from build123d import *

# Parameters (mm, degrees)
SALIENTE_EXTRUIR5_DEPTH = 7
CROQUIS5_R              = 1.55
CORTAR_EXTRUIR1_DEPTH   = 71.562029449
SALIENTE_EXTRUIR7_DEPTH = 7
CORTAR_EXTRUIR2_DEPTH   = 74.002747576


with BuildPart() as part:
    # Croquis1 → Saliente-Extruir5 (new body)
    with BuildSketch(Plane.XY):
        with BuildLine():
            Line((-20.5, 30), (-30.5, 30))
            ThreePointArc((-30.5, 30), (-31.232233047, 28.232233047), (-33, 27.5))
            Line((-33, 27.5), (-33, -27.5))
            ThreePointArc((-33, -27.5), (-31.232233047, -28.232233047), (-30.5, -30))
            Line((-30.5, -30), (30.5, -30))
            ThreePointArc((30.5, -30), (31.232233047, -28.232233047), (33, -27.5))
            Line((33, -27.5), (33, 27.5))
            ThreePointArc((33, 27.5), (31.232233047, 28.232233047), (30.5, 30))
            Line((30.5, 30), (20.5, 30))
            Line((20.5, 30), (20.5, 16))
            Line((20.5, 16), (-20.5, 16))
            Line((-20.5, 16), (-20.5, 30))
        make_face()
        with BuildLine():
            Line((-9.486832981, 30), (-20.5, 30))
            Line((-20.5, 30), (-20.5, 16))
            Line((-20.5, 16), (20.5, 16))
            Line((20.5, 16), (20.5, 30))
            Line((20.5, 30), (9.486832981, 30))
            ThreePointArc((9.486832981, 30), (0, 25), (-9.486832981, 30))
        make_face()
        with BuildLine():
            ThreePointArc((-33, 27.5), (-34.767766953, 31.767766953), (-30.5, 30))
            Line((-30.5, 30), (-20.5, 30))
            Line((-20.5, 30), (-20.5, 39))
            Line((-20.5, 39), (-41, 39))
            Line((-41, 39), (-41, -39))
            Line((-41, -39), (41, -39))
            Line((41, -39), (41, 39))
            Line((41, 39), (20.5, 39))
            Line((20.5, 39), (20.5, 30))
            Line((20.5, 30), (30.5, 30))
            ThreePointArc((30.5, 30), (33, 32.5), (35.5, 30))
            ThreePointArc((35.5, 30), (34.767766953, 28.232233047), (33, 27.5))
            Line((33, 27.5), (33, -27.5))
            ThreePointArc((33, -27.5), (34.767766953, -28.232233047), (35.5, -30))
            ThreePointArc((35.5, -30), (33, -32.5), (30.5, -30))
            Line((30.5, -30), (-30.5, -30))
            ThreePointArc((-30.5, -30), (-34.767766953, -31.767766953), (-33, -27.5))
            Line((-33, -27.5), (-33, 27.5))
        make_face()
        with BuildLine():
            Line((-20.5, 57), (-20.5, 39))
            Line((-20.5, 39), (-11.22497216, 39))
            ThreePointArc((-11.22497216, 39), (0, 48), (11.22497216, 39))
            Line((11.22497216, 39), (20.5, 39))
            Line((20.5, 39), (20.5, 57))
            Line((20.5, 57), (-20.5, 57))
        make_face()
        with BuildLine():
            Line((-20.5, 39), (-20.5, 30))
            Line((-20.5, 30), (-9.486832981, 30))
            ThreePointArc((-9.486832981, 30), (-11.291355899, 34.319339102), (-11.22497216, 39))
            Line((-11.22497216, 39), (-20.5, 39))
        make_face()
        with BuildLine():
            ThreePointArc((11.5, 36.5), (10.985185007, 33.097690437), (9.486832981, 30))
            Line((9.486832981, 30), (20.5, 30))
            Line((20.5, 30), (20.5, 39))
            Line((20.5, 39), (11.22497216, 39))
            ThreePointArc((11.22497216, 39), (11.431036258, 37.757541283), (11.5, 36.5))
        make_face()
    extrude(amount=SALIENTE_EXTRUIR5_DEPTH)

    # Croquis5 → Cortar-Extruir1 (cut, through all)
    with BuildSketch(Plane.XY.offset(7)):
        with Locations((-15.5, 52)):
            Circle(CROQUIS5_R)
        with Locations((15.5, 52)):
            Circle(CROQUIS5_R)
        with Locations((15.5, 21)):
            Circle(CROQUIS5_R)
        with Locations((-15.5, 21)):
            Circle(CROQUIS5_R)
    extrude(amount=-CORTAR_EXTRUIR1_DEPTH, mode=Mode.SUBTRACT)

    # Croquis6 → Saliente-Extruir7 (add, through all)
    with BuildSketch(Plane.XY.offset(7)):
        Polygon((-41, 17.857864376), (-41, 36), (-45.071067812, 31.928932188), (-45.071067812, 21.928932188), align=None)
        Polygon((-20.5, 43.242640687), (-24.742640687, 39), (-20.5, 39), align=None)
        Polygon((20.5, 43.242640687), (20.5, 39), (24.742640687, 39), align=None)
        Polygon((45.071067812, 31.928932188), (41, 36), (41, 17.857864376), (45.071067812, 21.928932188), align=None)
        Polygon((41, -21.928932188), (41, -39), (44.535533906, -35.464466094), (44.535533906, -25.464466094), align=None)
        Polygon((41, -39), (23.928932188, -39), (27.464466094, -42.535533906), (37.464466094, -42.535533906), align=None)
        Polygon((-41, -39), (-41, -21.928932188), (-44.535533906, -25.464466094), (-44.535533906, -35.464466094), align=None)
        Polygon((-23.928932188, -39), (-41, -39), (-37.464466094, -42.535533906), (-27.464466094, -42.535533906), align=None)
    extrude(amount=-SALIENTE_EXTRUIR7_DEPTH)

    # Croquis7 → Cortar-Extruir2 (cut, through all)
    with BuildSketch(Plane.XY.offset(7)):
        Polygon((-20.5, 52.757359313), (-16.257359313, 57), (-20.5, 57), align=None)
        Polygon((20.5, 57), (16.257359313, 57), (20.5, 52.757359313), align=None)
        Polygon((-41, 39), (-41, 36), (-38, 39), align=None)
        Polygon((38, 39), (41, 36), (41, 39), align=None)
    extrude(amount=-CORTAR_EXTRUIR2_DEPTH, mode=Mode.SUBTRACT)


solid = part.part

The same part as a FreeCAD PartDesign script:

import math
import FreeCAD as App
import Part
import Sketcher
from FreeCAD import Vector
Q = App.Units.Quantity


def add_polygon(sketch, points):
    """Adds a closed chain of lines whose ends are joined by coincident constraints."""
    first, n = sketch.GeometryCount, len(points)
    for a, b in zip(points, points[1:] + points[:1]):
        sketch.addGeometry(Part.LineSegment(App.Vector(*a, 0), App.Vector(*b, 0)), False)
    for i in range(n):
        sketch.addConstraint(Sketcher.Constraint("Coincident", first + i, 2, first + (i + 1) % n, 1))

doc = App.newDocument("Part")
params = doc.addObject("Spreadsheet::Sheet", "Params")
for row, (alias, value) in enumerate([
    ("sketch1_radius", "2.5 mm"),
    ("sketch1_radius2", "11.5 mm"),
    ("sketch1_width", "41 mm"),
    ("sketch1_width2", "82 mm"),
    ("sketch1_height", "18 mm"),
    ("pad1_length", "7 mm"),
    ("sketch2_diameter", "3.1 mm"),
    ("sketch3_width", "10 mm"),
    ("sketch3_length", "6 mm"),
    ("sketch3_length2", "5 mm"),
    ("sketch4_width", "3 mm"),
    ("sketch4_length", "6 mm"),
], start=1):
    params.set(f"A{row}", alias)
    params.set(f"B{row}", "=" + value)
    params.setAlias(f"B{row}", alias)

body = doc.addObject("PartDesign::Body", "Body")

# Sketch on XY plane
sketch1 = body.newObject("Sketcher::SketchObject", "Sketch")
sketch1.AttachmentSupport = (doc.getObject("XY_Plane"), [""])
sketch1.MapMode = "FlatFace"
add_polygon(sketch1, [(41, 39), (20.5, 39), (20.5, 57), (-20.5, 57), (-20.5, 39), (-41, 39), (-41, -39), (41, -39)])  # lines 0-7
sketch1.addGeometry(Part.ArcOfCircle(Part.Circle(Vector(-33, -30, 0), Vector(0, 0, 1), 2.5), math.radians(0), math.radians(90)), False)  # 8
sketch1.addGeometry(Part.ArcOfCircle(Part.Circle(Vector(-33, -30, 0), Vector(0, 0, 1), 2.5), math.radians(90), math.radians(360)), False)  # 9
sketch1.addGeometry(Part.ArcOfCircle(Part.Circle(Vector(33, -30, 0), Vector(0, 0, 1), 2.5), math.radians(90), math.radians(180)), False)  # 10
sketch1.addGeometry(Part.ArcOfCircle(Part.Circle(Vector(33, -30, 0), Vector(0, 0, 1), 2.5), math.radians(0), math.radians(90)), False)  # 11
sketch1.addGeometry(Part.ArcOfCircle(Part.Circle(Vector(33, -30, 0), Vector(0, 0, 1), 2.5), math.radians(180), math.radians(360)), False)  # 12
sketch1.addGeometry(Part.ArcOfCircle(Part.Circle(Vector(-33, 30, 0), Vector(0, 0, 1), 2.5), math.radians(-90), math.radians(0)), False)  # 13
sketch1.addGeometry(Part.ArcOfCircle(Part.Circle(Vector(-33, 30, 0), Vector(0, 0, 1), 2.5), math.radians(0), math.radians(270)), False)  # 14
sketch1.addGeometry(Part.ArcOfCircle(Part.Circle(Vector(0, 36.5, 0), Vector(0, 0, 1), 11.5), math.radians(13), math.radians(167)), False)  # 15
sketch1.addGeometry(Part.ArcOfCircle(Part.Circle(Vector(0, 36.5, 0), Vector(0, 0, 1), 11.5), math.radians(0), math.radians(12.56)), False)  # 16
sketch1.addGeometry(Part.ArcOfCircle(Part.Circle(Vector(0, 36.5, 0), Vector(0, 0, 1), 11.5), math.radians(-34), math.radians(0)), False)  # 17
sketch1.addGeometry(Part.ArcOfCircle(Part.Circle(Vector(0, 36.5, 0), Vector(0, 0, 1), 11.5), math.radians(-146), math.radians(-34)), False)  # 18
sketch1.addGeometry(Part.ArcOfCircle(Part.Circle(Vector(0, 36.5, 0), Vector(0, 0, 1), 11.5), math.radians(167), math.radians(214)), False)  # 19
sketch1.addGeometry(Part.ArcOfCircle(Part.Circle(Vector(33, 30, 0), Vector(0, 0, 1), 2.5), math.radians(180), math.radians(270)), False)  # 20
sketch1.addGeometry(Part.ArcOfCircle(Part.Circle(Vector(33, 30, 0), Vector(0, 0, 1), 2.5), math.radians(0), math.radians(180)), False)  # 21
sketch1.addGeometry(Part.ArcOfCircle(Part.Circle(Vector(33, 30, 0), Vector(0, 0, 1), 2.5), math.radians(-90), math.radians(0)), False)  # 22
sketch1.addConstraint([
    Sketcher.Constraint("Tangent", 8, 1, 9, 2),
    Sketcher.Constraint("Coincident", 9, 1, 8, 2),
    Sketcher.Constraint("Tangent", 10, 1, 11, 2),
    Sketcher.Constraint("Tangent", 11, 1, 12, 2),
    Sketcher.Constraint("Tangent", 12, 1, 10, 2),
    Sketcher.Constraint("Tangent", 13, 1, 14, 2),
    Sketcher.Constraint("Coincident", 14, 1, 13, 2),
    Sketcher.Constraint("Tangent", 15, 1, 16, 2),
    Sketcher.Constraint("Tangent", 16, 1, 17, 2),
    Sketcher.Constraint("Tangent", 17, 1, 18, 2),
    Sketcher.Constraint("Tangent", 18, 1, 19, 2),
    Sketcher.Constraint("Tangent", 19, 1, 15, 2),
    Sketcher.Constraint("Tangent", 20, 1, 21, 2),
    Sketcher.Constraint("Tangent", 21, 1, 22, 2),
    Sketcher.Constraint("Tangent", 22, 1, 20, 2),
    Sketcher.Constraint("Horizontal", 0),
    Sketcher.Constraint("Vertical", 1),
    Sketcher.Constraint("Horizontal", 2),
    Sketcher.Constraint("Vertical", 3),
    Sketcher.Constraint("Horizontal", 4),
    Sketcher.Constraint("Vertical", 5),
    Sketcher.Constraint("Horizontal", 6),
    Sketcher.Constraint("Vertical", 7),
    Sketcher.Constraint("Coincident", 17, 3, 15, 3),
    Sketcher.Constraint("Equal", 9, 10),
    Sketcher.Constraint("Equal", 12, 13),
    Sketcher.Constraint("Equal", 14, 20),
    Sketcher.Constraint("Symmetric", 10, 3, 13, 3, -1, 1),
    Sketcher.Constraint("Symmetric", 8, 3, 20, 3, -1, 1),
    Sketcher.Constraint("Symmetric", 4, 2, 6, 2, -1, 1),
    Sketcher.Constraint("Symmetric", 8, 3, 10, 3, -2),
    Sketcher.Constraint("Symmetric", 0, 2, 3, 2, -2),
    Sketcher.Constraint("Symmetric", 17, 1, 18, 1, -2),
    Sketcher.Constraint("Horizontal", 12, 3, 8, 1),
    Sketcher.Constraint("Horizontal", 8, 1, 11, 1),
    Sketcher.Constraint("Horizontal", 11, 1, 12, 1),
    Sketcher.Constraint("Horizontal", 22, 3, 14, 1),
    Sketcher.Constraint("Horizontal", 7, 2, 15, 1),
    Sketcher.Constraint("Horizontal", 19, 3, 16, 1),
    Sketcher.Constraint("Horizontal", 14, 1, 17, 1),
    Sketcher.Constraint("Horizontal", 15, 1, 19, 1),
    Sketcher.Constraint("Horizontal", 18, 1, 20, 1),
    Sketcher.Constraint("Horizontal", 20, 1, 21, 1),
    Sketcher.Constraint("Vertical", 14, 3, 9, 1),
    Sketcher.Constraint("Vertical", 22, 3, 10, 1),
    Sketcher.Constraint("Vertical", 9, 1, 13, 1),
    Sketcher.Constraint("Vertical", 10, 1, 22, 1),
    Sketcher.Constraint("Radius", 8, Q("2.5 mm")),
    Sketcher.Constraint("Radius", 15, Q("11.5 mm")),
    Sketcher.Constraint("DistanceX", 2, 2, 2, 1, Q("41 mm")),
    Sketcher.Constraint("DistanceX", 6, 1, 6, 2, Q("82 mm")),
    Sketcher.Constraint("DistanceY", 1, 1, 1, 2, Q("18 mm")),
    Sketcher.Constraint("DistanceY", 5, 2, 5, 1, Q("78 mm")),
    Sketcher.Constraint("DistanceX", 8, 3, -1, 1, Q("33 mm")),
    Sketcher.Constraint("DistanceY", 8, 3, -1, 1, Q("30 mm")),
    Sketcher.Constraint("DistanceY", -1, 1, 15, 3, Q("36.5 mm")),
])
sketch1.setExpression("Constraints[55]", "Params.sketch1_radius")
sketch1.setExpression("Constraints[56]", "Params.sketch1_radius2")
sketch1.setExpression("Constraints[57]", "Params.sketch1_width")
sketch1.setExpression("Constraints[58]", "Params.sketch1_width2")
sketch1.setExpression("Constraints[59]", "Params.sketch1_height")
pad1 = body.newObject("PartDesign::Pad", "Pad")
pad1.Profile = sketch1
pad1.setExpression("Length", "Params.pad1_length")

# Sketch on XY plane
sketch2 = body.newObject("Sketcher::SketchObject", "Sketch001")
sketch2.AttachmentSupport = (doc.getObject("XY_Plane"), [""])
sketch2.MapMode = "FlatFace"
sketch2.AttachmentOffset = App.Placement(Vector(0, 0, 7), App.Rotation())
sketch2.addGeometry([
    Part.Circle(Vector(-15.5, 52, 0), Vector(0, 0, 1), 1.6),
    Part.Circle(Vector(15.5, 52, 0), Vector(0, 0, 1), 1.6),
    Part.Circle(Vector(15.5, 21, 0), Vector(0, 0, 1), 1.6),
    Part.Circle(Vector(-15.5, 21, 0), Vector(0, 0, 1), 1.6),
], False)
sketch2.addConstraint([
    Sketcher.Constraint("Equal", 0, 1),
    Sketcher.Constraint("Equal", 1, 2),
    Sketcher.Constraint("Equal", 2, 3),
    Sketcher.Constraint("Symmetric", 0, 3, 1, 3, -2),
    Sketcher.Constraint("Symmetric", 2, 3, 3, 3, -2),
    Sketcher.Constraint("Vertical", 1, 3, 2, 3),
    Sketcher.Constraint("Diameter", 0, Q("3.1 mm")),
    Sketcher.Constraint("DistanceY", -1, 1, 0, 3, Q("52 mm")),
    Sketcher.Constraint("DistanceY", -1, 1, 2, 3, Q("21 mm")),
    Sketcher.Constraint("DistanceX", 0, 3, 1, 3, Q("31 mm")),
])
sketch2.setExpression("Constraints[6]", "Params.sketch2_diameter")
pocket1 = body.newObject("PartDesign::Pocket", "Pocket")
pocket1.Profile = sketch2
pocket1.Type = "ThroughAll"

# Sketch on XY plane
sketch3 = body.newObject("Sketcher::SketchObject", "Sketch002")
sketch3.AttachmentSupport = (doc.getObject("XY_Plane"), [""])
sketch3.MapMode = "FlatFace"
sketch3.AttachmentOffset = App.Placement(Vector(0, 0, 7), App.Rotation())
add_polygon(sketch3, [(-41, 17.9), (-41, 36), (-45.1, 31.9), (-45.1, 21.9)])  # lines 0-3
add_polygon(sketch3, [(-20.5, 43.2), (-24.7, 39), (-20.5, 39)])  # lines 4-6
add_polygon(sketch3, [(20.5, 43.2), (20.5, 39), (24.7, 39)])  # lines 7-9
add_polygon(sketch3, [(45.1, 31.9), (41, 36), (41, 17.9), (45.1, 21.9)])  # lines 10-13
add_polygon(sketch3, [(41, -21.9), (41, -39), (44.5, -35.5), (44.5, -25.5)])  # lines 14-17
add_polygon(sketch3, [(41, -39), (23.9, -39), (27.5, -42.5), (37.5, -42.5)])  # lines 18-21
add_polygon(sketch3, [(-41, -39), (-41, -21.9), (-44.5, -25.5), (-44.5, -35.5)])  # lines 22-25
add_polygon(sketch3, [(-23.9, -39), (-41, -39), (-37.5, -42.5), (-27.5, -42.5)])  # lines 26-29
sketch3.addConstraint([
    Sketcher.Constraint("Vertical", 0),
    Sketcher.Constraint("Vertical", 2),
    Sketcher.Constraint("Horizontal", 5),
    Sketcher.Constraint("Vertical", 6),
    Sketcher.Constraint("Vertical", 7),
    Sketcher.Constraint("Horizontal", 8),
    Sketcher.Constraint("Vertical", 11),
    Sketcher.Constraint("Vertical", 13),
    Sketcher.Constraint("Vertical", 14),
    Sketcher.Constraint("Vertical", 16),
    Sketcher.Constraint("Horizontal", 18),
    Sketcher.Constraint("Horizontal", 20),
    Sketcher.Constraint("Vertical", 22),
    Sketcher.Constraint("Vertical", 24),
    Sketcher.Constraint("Horizontal", 26),
    Sketcher.Constraint("Horizontal", 28),
    Sketcher.Constraint("Coincident", 21, 2, 14, 2),
    Sketcher.Constraint("Coincident", 26, 2, 25, 2),
    Sketcher.Constraint("Symmetric", 5, 2, 7, 2, -2),
    Sketcher.Constraint("Symmetric", 0, 2, 10, 2, -2),
    Sketcher.Constraint("Symmetric", 2, 2, 12, 2, -2),
    Sketcher.Constraint("Symmetric", 17, 2, 22, 2, -2),
    Sketcher.Constraint("Symmetric", 16, 2, 23, 2, -2),
    Sketcher.Constraint("Symmetric", 20, 2, 27, 2, -2),
    Sketcher.Constraint("Symmetric", 18, 2, 29, 2, -2),
    Sketcher.Constraint("Perpendicular", 1, 3),
    Sketcher.Constraint("Perpendicular", 3, 4),
    Sketcher.Constraint("Perpendicular", 4, 9),
    Sketcher.Constraint("Parallel", 9, 10),
    Sketcher.Constraint("Perpendicular", 10, 12),
    Sketcher.Constraint("Parallel", 12, 15),
    Sketcher.Constraint("Perpendicular", 15, 17),
    Sketcher.Constraint("Parallel", 17, 19),
    Sketcher.Constraint("Perpendicular", 19, 21),
    Sketcher.Constraint("Parallel", 21, 23),
    Sketcher.Constraint("Perpendicular", 23, 25),
    Sketcher.Constraint("Perpendicular", 27, 29),
    Sketcher.Constraint("Horizontal", 6, 2, 9, 2),
    Sketcher.Constraint("Vertical", 11, 2, 14, 2),
    Sketcher.Constraint("Equal", 28, 2),
    Sketcher.Constraint("Equal", 26, 14),
    Sketcher.Constraint("Equal", 13, 16),
    Sketcher.Constraint("DistanceX", 20, 1, 20, 2, Q("10 mm")),
    Sketcher.Constraint("Distance", 4, Q("6 mm")),
    Sketcher.Constraint("Distance", 15, Q("5 mm")),
    Sketcher.Constraint("DistanceX", 0, 2, -1, 1, Q("41 mm")),
    Sketcher.Constraint("DistanceY", -1, 1, 0, 2, Q("36 mm")),
    Sketcher.Constraint("DistanceY", -1, 1, 4, 2, Q("39 mm")),
    Sketcher.Constraint("DistanceY", 14, 2, -1, 1, Q("39 mm")),
    Sketcher.Constraint("DistanceX", 5, 2, 7, 2, Q("41 mm")),
    Sketcher.Constraint("DistanceY", 15, 2, 12, 2, Q("57.393398 mm")),
])
sketch3.setExpression("Constraints[72]", "Params.sketch3_width")
sketch3.setExpression("Constraints[73]", "Params.sketch3_length")
sketch3.setExpression("Constraints[74]", "Params.sketch3_length2")
pad2 = body.newObject("PartDesign::Pad", "Pad001")
pad2.Profile = sketch3
pad2.Type = "UpToLast"
pad2.Reversed = True

# Sketch on XY plane
sketch4 = body.newObject("Sketcher::SketchObject", "Sketch003")
sketch4.AttachmentSupport = (doc.getObject("XY_Plane"), [""])
sketch4.MapMode = "FlatFace"
sketch4.AttachmentOffset = App.Placement(Vector(0, 0, 7), App.Rotation())
add_polygon(sketch4, [(-20.5, 52.8), (-16.3, 57), (-20.5, 57)])  # lines 0-2
add_polygon(sketch4, [(20.5, 57), (16.3, 57), (20.5, 52.8)])  # lines 3-5
add_polygon(sketch4, [(-41, 39), (-41, 36), (-38, 39)])  # lines 6-8
add_polygon(sketch4, [(38, 39), (41, 36), (41, 39)])  # lines 9-11
sketch4.addConstraint([
    Sketcher.Constraint("Horizontal", 1),
    Sketcher.Constraint("Vertical", 2),
    Sketcher.Constraint("Horizontal", 3),
    Sketcher.Constraint("Vertical", 5),
    Sketcher.Constraint("Vertical", 6),
    Sketcher.Constraint("Horizontal", 8),
    Sketcher.Constraint("Vertical", 10),
    Sketcher.Constraint("Horizontal", 11),
    Sketcher.Constraint("Symmetric", 0, 2, 3, 2, -2),
    Sketcher.Constraint("Symmetric", 2, 2, 4, 2, -2),
    Sketcher.Constraint("Symmetric", 6, 2, 9, 2, -2),
    Sketcher.Constraint("Symmetric", 7, 2, 11, 2, -2),
    Sketcher.Constraint("Perpendicular", 0, 4),
    Sketcher.Constraint("Perpendicular", 4, 7),
    Sketcher.Constraint("DistanceX", 8, 2, 8, 1, Q("3 mm")),
    Sketcher.Constraint("Distance", 0, Q("6 mm")),
    Sketcher.Constraint("DistanceY", -1, 1, 0, 2, Q("57 mm")),
    Sketcher.Constraint("DistanceX", 6, 2, -1, 1, Q("41 mm")),
    Sketcher.Constraint("DistanceY", -1, 1, 6, 2, Q("36 mm")),
    Sketcher.Constraint("DistanceX", 2, 2, 4, 2, Q("41 mm")),
])
sketch4.setExpression("Constraints[26]", "Params.sketch4_width")
sketch4.setExpression("Constraints[27]", "Params.sketch4_length")
pocket2 = body.newObject("PartDesign::Pocket", "Pocket001")
pocket2.Profile = sketch4
pocket2.Type = "ThroughAll"

doc.recompute()
